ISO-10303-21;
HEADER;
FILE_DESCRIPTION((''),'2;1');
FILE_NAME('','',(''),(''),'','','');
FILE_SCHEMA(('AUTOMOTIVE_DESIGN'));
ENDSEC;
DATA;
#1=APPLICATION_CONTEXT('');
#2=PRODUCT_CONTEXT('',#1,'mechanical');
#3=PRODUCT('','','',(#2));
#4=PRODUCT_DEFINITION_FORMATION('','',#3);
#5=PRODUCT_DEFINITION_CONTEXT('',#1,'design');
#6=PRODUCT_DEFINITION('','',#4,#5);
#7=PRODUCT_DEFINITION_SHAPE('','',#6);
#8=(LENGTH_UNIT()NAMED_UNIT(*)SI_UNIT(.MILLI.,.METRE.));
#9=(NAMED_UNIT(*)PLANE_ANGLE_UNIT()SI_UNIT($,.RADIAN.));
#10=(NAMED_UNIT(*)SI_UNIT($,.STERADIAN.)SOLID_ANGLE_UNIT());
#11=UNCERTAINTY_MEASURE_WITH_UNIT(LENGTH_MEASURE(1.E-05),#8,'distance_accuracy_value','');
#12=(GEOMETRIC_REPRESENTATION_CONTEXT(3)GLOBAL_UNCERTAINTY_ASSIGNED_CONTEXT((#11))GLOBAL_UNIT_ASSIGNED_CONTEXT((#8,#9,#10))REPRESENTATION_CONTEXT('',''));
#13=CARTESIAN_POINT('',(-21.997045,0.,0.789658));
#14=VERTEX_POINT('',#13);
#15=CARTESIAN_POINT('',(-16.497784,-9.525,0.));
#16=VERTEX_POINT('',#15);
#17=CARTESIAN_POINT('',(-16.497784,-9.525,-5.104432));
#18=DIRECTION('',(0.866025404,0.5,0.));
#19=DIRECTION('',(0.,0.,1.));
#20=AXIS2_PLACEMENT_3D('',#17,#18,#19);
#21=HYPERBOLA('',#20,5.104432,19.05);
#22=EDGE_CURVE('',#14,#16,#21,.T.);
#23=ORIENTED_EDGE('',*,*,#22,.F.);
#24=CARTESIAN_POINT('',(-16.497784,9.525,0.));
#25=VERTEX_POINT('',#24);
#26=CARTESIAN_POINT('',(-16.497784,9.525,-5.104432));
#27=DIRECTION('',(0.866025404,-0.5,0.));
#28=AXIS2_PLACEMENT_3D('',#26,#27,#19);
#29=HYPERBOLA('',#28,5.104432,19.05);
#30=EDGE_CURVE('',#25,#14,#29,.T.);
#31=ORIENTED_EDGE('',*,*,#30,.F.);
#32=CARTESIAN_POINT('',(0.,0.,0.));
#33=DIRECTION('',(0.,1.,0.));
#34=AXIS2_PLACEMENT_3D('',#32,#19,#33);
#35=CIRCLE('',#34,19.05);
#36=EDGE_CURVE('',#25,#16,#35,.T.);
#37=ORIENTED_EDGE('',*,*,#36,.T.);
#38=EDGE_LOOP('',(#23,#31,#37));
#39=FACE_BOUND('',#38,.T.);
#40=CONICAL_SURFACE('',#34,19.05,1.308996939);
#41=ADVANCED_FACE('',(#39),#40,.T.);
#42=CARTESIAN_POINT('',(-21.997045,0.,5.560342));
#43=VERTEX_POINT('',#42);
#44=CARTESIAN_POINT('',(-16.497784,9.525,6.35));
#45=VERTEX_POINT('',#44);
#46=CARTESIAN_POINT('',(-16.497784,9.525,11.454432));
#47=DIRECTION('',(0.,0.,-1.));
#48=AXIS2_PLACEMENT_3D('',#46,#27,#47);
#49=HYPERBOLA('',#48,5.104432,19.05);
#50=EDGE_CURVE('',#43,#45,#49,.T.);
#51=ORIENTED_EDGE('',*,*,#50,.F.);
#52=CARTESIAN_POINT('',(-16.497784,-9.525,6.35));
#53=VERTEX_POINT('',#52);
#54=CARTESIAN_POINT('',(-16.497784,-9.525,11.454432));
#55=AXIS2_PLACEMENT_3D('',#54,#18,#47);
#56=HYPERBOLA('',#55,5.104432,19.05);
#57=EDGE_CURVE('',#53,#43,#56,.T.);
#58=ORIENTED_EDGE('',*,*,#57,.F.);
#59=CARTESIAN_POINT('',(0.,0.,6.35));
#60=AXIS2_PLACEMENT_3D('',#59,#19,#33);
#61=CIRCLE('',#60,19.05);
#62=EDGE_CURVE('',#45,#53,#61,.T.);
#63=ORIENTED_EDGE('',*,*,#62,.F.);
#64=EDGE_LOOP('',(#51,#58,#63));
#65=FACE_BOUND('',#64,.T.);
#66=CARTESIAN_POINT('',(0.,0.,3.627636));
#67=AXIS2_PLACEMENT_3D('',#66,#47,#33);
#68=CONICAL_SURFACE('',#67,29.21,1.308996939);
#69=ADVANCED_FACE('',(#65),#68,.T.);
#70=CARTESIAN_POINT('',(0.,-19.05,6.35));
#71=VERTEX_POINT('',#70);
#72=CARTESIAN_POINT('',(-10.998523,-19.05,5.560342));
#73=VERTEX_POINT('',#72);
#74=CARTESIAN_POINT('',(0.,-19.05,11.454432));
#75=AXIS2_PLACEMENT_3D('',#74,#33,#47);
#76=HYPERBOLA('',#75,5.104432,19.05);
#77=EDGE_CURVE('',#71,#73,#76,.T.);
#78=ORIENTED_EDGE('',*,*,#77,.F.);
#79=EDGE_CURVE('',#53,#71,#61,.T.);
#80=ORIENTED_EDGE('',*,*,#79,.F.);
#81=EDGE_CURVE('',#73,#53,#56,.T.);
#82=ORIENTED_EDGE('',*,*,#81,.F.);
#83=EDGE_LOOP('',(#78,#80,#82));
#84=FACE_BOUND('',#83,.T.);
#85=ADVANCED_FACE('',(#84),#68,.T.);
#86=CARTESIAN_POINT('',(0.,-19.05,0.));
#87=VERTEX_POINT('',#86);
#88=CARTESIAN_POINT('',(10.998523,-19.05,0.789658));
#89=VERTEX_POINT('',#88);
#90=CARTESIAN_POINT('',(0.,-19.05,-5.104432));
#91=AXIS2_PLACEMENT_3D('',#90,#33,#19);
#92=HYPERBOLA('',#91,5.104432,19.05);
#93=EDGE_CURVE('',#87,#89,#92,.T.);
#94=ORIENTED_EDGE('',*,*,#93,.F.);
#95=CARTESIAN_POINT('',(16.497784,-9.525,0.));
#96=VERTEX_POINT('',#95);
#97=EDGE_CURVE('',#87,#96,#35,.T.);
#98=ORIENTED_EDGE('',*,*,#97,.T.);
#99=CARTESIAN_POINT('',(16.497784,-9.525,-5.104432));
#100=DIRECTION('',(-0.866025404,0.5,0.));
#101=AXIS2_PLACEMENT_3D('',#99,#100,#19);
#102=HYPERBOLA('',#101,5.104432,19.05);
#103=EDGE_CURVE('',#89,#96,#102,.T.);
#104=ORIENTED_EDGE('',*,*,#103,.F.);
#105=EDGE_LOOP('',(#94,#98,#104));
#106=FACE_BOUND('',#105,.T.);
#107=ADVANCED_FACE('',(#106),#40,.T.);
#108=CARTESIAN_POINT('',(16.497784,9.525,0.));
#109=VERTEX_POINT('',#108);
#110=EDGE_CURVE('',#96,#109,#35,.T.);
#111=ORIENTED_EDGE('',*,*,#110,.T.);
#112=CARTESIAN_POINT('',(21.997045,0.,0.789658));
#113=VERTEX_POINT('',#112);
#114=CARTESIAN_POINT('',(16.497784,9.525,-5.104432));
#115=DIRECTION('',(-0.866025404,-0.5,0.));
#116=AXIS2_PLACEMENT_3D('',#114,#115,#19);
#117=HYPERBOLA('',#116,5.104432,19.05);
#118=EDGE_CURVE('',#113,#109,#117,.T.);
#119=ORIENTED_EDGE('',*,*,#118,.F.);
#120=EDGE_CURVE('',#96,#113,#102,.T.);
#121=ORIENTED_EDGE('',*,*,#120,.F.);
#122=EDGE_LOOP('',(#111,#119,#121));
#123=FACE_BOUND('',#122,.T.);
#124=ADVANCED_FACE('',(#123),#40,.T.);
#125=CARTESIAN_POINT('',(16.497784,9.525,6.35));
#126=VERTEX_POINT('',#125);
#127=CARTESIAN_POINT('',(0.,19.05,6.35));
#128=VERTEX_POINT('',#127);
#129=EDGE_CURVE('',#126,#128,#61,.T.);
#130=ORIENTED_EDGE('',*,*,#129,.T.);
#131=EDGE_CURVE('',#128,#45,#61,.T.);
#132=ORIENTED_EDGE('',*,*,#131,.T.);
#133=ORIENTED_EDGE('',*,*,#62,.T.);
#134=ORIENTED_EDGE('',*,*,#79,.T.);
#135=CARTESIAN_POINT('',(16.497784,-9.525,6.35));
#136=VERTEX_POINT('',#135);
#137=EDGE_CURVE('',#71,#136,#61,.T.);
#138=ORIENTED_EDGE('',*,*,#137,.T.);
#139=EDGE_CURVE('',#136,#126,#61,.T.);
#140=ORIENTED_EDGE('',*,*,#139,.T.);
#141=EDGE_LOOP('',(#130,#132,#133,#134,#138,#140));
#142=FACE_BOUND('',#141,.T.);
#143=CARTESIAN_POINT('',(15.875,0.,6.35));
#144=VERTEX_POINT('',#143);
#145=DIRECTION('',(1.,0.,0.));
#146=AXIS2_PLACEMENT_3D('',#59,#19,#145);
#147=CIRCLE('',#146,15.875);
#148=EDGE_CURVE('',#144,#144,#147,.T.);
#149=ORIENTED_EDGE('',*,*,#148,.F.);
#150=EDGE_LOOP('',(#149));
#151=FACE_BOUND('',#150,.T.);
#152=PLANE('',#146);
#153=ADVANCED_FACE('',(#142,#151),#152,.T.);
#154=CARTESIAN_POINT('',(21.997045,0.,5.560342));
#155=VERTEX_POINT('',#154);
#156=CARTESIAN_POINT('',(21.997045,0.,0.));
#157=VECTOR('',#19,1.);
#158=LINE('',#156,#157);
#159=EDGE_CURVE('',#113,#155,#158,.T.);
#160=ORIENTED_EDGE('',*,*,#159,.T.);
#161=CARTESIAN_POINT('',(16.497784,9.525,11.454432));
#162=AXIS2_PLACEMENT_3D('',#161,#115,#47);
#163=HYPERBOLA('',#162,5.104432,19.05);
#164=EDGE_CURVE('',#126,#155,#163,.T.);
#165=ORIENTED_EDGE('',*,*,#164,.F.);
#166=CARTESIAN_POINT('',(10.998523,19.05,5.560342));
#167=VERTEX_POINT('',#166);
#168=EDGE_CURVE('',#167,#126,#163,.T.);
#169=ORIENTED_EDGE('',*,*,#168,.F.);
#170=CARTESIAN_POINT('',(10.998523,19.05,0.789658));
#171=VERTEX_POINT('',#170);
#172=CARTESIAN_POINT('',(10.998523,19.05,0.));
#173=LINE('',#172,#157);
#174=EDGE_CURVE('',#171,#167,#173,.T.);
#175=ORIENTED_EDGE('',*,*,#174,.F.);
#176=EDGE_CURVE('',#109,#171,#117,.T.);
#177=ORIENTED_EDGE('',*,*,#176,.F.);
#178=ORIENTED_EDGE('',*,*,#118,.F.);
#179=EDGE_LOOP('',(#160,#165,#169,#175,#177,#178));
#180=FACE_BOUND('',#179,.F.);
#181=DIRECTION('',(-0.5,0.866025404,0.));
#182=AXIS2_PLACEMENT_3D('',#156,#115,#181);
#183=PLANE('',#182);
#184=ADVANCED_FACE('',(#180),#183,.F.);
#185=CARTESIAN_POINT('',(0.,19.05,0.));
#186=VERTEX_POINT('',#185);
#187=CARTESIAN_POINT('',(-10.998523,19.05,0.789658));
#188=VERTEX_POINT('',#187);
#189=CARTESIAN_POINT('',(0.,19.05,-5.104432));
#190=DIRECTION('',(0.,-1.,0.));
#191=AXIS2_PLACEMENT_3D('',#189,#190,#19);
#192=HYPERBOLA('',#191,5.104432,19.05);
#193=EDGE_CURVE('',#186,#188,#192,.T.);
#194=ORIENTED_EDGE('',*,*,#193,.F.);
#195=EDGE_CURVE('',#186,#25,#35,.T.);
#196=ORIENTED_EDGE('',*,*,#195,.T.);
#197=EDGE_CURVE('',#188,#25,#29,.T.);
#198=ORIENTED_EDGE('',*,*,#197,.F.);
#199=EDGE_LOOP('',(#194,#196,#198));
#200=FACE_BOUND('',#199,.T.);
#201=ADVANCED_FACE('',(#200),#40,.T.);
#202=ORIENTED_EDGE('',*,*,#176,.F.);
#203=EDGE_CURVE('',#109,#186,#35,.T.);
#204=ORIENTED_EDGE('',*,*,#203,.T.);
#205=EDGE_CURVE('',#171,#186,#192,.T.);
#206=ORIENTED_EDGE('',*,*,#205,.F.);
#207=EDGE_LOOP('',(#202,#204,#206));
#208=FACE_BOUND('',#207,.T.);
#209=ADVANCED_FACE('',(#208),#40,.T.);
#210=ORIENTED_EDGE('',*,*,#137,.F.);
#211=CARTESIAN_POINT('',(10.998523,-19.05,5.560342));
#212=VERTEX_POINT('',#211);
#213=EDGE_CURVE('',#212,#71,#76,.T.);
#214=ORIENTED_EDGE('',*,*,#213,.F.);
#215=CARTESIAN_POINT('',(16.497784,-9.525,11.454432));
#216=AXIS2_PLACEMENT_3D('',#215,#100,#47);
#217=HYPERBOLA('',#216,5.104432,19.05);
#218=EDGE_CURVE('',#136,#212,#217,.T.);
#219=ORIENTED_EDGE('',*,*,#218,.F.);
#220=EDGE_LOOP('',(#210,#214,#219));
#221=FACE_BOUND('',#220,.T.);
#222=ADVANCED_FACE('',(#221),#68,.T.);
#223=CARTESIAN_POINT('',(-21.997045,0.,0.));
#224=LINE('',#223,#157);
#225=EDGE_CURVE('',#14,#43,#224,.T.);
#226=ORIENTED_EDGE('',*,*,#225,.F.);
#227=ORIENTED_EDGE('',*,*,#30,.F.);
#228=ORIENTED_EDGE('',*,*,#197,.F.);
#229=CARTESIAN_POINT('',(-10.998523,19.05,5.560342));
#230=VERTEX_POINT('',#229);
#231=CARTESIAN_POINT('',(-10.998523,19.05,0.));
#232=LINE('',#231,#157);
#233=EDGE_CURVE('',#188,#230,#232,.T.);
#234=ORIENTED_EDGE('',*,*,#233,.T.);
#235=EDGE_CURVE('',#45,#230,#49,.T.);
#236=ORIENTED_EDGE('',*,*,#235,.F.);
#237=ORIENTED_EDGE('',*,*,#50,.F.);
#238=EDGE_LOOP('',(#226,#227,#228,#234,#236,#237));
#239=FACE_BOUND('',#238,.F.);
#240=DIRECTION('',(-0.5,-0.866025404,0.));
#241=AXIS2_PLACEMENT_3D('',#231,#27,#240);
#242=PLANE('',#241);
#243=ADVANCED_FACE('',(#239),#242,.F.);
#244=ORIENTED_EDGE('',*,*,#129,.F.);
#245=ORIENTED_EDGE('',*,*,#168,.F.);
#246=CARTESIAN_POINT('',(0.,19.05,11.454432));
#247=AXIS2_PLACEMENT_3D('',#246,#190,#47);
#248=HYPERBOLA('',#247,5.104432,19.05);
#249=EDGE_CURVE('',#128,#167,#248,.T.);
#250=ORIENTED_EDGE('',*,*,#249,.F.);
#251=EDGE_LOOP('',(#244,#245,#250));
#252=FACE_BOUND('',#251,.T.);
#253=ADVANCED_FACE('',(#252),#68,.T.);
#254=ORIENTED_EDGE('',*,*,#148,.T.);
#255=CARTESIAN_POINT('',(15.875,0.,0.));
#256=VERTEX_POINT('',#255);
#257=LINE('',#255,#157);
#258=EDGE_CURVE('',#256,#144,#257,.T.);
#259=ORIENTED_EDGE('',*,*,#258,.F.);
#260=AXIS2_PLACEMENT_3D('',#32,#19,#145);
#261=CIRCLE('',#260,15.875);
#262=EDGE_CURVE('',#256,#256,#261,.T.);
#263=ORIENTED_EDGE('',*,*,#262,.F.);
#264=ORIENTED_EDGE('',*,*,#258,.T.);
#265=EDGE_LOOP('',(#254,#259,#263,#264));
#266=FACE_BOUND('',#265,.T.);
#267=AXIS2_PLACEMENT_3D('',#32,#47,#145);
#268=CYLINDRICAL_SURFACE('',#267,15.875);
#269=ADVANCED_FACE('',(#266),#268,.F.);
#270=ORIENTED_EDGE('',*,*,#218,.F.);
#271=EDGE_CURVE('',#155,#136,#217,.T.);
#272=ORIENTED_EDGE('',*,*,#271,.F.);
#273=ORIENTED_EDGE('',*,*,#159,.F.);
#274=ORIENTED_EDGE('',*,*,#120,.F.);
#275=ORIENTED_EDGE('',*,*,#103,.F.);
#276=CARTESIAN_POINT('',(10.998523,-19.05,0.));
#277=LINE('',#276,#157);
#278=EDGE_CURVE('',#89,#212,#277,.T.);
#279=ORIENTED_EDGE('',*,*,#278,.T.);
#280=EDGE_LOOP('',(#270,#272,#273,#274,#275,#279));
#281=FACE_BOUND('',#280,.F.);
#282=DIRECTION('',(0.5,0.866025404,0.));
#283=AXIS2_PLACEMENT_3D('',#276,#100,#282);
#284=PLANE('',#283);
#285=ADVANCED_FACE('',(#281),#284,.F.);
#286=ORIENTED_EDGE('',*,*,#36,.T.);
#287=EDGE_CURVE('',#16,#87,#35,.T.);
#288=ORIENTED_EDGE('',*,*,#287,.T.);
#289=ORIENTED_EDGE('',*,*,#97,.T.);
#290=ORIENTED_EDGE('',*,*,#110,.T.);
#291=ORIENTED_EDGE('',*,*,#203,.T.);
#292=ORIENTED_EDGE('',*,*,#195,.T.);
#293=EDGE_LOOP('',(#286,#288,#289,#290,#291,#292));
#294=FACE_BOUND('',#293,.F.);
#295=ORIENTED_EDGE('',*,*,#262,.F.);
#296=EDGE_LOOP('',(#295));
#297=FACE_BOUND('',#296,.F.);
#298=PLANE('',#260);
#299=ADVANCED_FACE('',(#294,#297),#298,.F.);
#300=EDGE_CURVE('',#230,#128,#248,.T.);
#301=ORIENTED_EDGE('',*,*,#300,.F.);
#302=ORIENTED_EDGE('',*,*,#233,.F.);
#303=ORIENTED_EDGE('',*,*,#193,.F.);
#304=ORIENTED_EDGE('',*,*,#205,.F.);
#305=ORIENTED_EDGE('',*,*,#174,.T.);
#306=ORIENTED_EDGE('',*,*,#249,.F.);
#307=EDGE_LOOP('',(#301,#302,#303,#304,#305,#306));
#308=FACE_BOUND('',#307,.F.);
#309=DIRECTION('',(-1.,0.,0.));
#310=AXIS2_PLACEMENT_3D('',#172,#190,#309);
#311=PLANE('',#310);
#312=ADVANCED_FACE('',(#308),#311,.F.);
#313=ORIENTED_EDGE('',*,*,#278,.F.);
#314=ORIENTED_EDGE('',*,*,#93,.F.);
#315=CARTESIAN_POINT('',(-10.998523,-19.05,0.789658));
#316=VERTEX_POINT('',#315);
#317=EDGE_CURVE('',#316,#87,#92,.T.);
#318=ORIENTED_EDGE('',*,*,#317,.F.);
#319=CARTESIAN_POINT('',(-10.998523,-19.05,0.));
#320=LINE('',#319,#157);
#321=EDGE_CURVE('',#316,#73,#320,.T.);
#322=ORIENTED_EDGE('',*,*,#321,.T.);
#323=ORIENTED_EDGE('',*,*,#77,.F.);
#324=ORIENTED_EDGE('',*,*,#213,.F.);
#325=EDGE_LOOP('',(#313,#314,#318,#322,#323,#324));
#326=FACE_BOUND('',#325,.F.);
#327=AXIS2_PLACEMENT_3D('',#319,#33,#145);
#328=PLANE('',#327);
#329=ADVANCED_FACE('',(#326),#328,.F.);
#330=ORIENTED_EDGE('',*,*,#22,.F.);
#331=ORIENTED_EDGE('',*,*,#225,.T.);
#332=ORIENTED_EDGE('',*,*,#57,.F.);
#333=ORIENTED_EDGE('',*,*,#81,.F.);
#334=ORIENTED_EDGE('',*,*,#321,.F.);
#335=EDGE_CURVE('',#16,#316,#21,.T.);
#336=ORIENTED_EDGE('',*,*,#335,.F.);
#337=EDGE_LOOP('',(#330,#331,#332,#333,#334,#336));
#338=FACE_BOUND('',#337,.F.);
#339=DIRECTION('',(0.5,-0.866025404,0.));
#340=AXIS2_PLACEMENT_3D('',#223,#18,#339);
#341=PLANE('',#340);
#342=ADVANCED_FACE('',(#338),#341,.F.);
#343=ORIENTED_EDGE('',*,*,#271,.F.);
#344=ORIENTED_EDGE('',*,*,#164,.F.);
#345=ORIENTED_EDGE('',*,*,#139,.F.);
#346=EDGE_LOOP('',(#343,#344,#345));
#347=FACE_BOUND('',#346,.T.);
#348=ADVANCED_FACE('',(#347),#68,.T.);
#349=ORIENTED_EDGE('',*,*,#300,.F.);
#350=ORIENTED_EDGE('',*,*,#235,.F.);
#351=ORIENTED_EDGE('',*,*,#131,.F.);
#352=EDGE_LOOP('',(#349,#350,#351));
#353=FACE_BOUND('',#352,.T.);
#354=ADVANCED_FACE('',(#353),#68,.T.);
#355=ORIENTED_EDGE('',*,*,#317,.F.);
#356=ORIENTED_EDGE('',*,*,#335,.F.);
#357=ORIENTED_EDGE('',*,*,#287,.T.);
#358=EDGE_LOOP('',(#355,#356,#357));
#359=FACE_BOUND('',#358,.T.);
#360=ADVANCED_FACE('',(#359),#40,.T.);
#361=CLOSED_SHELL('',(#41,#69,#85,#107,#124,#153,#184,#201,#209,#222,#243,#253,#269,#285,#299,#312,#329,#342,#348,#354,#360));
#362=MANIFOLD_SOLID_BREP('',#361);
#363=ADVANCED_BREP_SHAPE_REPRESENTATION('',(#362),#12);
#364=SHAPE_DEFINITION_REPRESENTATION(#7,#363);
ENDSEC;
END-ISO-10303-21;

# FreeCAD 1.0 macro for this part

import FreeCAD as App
import Part
import Sketcher
from FreeCAD import Vector
Q = App.Units.Quantity


def add_polygon(sketch, points):
    """Adds a closed chain of lines whose ends are joined by coincident constraints."""
    first, n = sketch.GeometryCount, len(points)
    for a, b in zip(points, points[1:] + points[:1]):
        sketch.addGeometry(Part.LineSegment(App.Vector(*a, 0), App.Vector(*b, 0)), False)
    for i in range(n):
        sketch.addConstraint(Sketcher.Constraint("Coincident", first + i, 2, first + (i + 1) % n, 1))

doc = App.newDocument("Part")
body = doc.addObject("PartDesign::Body", "Body")

sketch1 = doc.addObject("Sketcher::SketchObject", "Sketch")
body.addObject(sketch1)
sketch1.AttachmentSupport = (doc.XY_Plane, [""])
sketch1.MapMode = "FlatFace"
add_polygon(sketch1, [(11, 19), (-11, 19), (-22, 0), (-11, -19), (11, -19), (22, 0)])
sketch1.addGeometry(Part.Circle(Vector(0, 0, 0), Vector(0, 0, 1), 16), False)
sketch1.addConstraint([
    Sketcher.Constraint("Horizontal", 0),
    Sketcher.Constraint("Horizontal", 3),
    Sketcher.Constraint("Coincident", 6, 3, -1, 1),
    Sketcher.Constraint("Symmetric", 0, 2, 3, 2, -1, 1),
    Sketcher.Constraint("Symmetric", 1, 2, 4, 2, -1, 1),
    Sketcher.Constraint("PointOnObject", 1, 2, -1),
    Sketcher.Constraint("Parallel", 2, 5),
    Sketcher.Constraint("Vertical", 0, 2, 2, 2),
    Sketcher.Constraint("Diameter", 6, Q("1.25 in")),
    Sketcher.Constraint("Angle", 1, Q("-120 deg")),
    Sketcher.Constraint("DistanceY", 2, 2, 0, 2, Q("1.5 in")),
    Sketcher.Constraint("DistanceX", 0, 2, 0, 1, Q("21.997045 mm")),
])
pad1 = doc.addObject("PartDesign::Pad", "Pad")
body.addObject(pad1)
pad1.Profile = sketch1
pad1.Length = Q("0.25 in")

sketch2 = doc.addObject("Sketcher::SketchObject", "Sketch001")
body.addObject(sketch2)
sketch2.AttachmentSupport = (doc.XZ_Plane, [""])
sketch2.MapMode = "FlatFace"
add_polygon(sketch2, [(-29.2, 2.7), (-29.2, 3.6), (-30.9, 3.2)])
add_polygon(sketch2, [(-19.1, 0), (-29.2, 2.7), (-29.2, 0)])
add_polygon(sketch2, [(-29.2, 3.6), (-19.1, 6.3), (-29.2, 6.3)])
sketch2.addConstraint([
    Sketcher.Constraint("Vertical", 0),
    Sketcher.Constraint("Vertical", 4),
    Sketcher.Constraint("Horizontal", 5),
    Sketcher.Constraint("Horizontal", 7),
    Sketcher.Constraint("Vertical", 8),
    Sketcher.Constraint("Coincident", 3, 2, 2, 2),
    Sketcher.Constraint("Coincident", 8, 2, 0, 2),
    Sketcher.Constraint("PointOnObject", 4, 2, -1),
    Sketcher.Constraint("Parallel", 2, 3),
    Sketcher.Constraint("Parallel", 1, 6),
    Sketcher.Constraint("Vertical", 5, 2, 6, 2),
    Sketcher.Constraint("Equal", 4, 8),
    Sketcher.Constraint("DistanceX", 5, 1, 5, 2, Q("0.4 in")),
    Sketcher.Constraint("Angle", 1, Q("-165 deg")),
    Sketcher.Constraint("DistanceX", 0, 2, -1, 1, Q("1.15 in")),
    Sketcher.Constraint("DistanceY", -1, 1, 6, 2, Q("0.25 in")),
])

sketch3 = doc.addObject("Sketcher::SketchObject", "Sketch002")
body.addObject(sketch3)
sketch3.AttachmentSupport = (doc.XY_Plane, [""])
sketch3.MapMode = "FlatFace"
sketch3.AttachmentOffset = App.Placement(Vector(0, 0, 0.25 * 25.4), App.Rotation())
sketch3.addGeometry(Part.Circle(Vector(0, 0, 0), Vector(0, 0, 1), 16), False)
sketch3.addConstraint([
    Sketcher.Constraint("Coincident", 0, 3, -1, 1),
    Sketcher.Constraint("Diameter", 0, Q("1.25 in")),
])
doc.recompute()

subtractivepipe = doc.addObject("PartDesign::SubtractivePipe", "SubtractivePipe")
body.addObject(subtractivepipe)
subtractivepipe.Profile = sketch2
subtractivepipe.Spine = (sketch3, ["Edge1"])

doc.recompute()
